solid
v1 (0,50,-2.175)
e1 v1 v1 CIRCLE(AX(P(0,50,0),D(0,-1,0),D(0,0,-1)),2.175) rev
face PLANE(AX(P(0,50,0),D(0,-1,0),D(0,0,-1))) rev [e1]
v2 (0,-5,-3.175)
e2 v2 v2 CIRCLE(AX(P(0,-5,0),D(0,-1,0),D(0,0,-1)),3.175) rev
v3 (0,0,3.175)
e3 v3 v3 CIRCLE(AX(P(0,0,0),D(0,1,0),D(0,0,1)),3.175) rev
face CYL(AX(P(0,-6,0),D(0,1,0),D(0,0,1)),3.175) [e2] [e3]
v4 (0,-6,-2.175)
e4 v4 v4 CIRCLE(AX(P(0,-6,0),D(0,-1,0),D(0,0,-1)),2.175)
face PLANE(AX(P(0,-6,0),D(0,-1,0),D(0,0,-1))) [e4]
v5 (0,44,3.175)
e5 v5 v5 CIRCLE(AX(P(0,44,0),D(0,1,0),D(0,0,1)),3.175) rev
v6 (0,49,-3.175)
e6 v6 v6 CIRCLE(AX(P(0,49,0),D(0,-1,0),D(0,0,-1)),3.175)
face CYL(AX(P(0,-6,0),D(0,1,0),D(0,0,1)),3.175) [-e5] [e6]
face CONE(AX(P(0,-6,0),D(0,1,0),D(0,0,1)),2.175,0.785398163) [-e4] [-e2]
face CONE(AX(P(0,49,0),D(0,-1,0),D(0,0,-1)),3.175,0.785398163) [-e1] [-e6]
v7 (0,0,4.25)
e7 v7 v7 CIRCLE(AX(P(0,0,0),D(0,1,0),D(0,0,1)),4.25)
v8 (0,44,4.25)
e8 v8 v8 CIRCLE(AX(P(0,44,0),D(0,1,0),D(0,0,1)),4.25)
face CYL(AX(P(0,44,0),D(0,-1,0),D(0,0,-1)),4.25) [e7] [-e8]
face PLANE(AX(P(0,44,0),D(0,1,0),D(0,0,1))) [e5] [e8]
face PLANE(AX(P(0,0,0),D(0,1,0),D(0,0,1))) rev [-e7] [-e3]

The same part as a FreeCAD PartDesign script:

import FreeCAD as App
import Part
import Sketcher
from FreeCAD import Vector
Q = App.Units.Quantity


def edges_at(feature, points):
    """Names of the edges that pass closest to the given points."""
    edges = feature.Shape.Edges
    near = lambda p: min(range(len(edges)), key=lambda i: edges[i].distToShape(Part.Vertex(*p))[0])
    return sorted({f"Edge{near(p) + 1}" for p in points})

doc = App.newDocument("Part")
body = doc.addObject("PartDesign::Body", "Body")

# Sketch on XZ plane
sketch1 = body.newObject("Sketcher::SketchObject", "Sketch")
sketch1.AttachmentSupport = (doc.getObject("XZ_Plane"), [""])
sketch1.MapMode = "FlatFace"
sketch1.addGeometry(Part.Circle(Vector(0, 0, 0), Vector(0, 0, 1), 4.2), False)
sketch1.addConstraint(Sketcher.Constraint("Coincident", 0, 3, -1, 1))
sketch1.addConstraint(Sketcher.Constraint("Diameter", 0, Q("8.5 mm")))
pad1 = body.newObject("PartDesign::Pad", "Pad")
pad1.Profile = sketch1
pad1.Length = 44
pad1.Reversed = True

# Sketch on XZ plane
sketch2 = body.newObject("Sketcher::SketchObject", "Sketch001")
sketch2.AttachmentSupport = (doc.getObject("XZ_Plane"), [""])
sketch2.MapMode = "FlatFace"
sketch2.addGeometry(Part.Circle(Vector(0, 0, 0), Vector(0, 0, 1), 3.2), False)
sketch2.addConstraint(Sketcher.Constraint("Coincident", 0, 3, -1, 1))
sketch2.addConstraint(Sketcher.Constraint("Diameter", 0, Q("6.35 mm")))
pad2 = body.newObject("PartDesign::Pad", "Pad001")
pad2.Profile = sketch2
pad2.Type = "TwoLengths"
pad2.Length = 6
pad2.Length2 = 50
doc.recompute()

chamfer = body.newObject("PartDesign::Chamfer", "Chamfer")
chamfer.Base = (pad2, edges_at(pad2, [(0, -6, -3.175)]))
chamfer.Size = 1
doc.recompute()

chamfer2 = body.newObject("PartDesign::Chamfer", "Chamfer001")
chamfer2.Base = (chamfer, edges_at(chamfer, [(0, 50, -3.175)]))
chamfer2.Size = 1

doc.recompute()
